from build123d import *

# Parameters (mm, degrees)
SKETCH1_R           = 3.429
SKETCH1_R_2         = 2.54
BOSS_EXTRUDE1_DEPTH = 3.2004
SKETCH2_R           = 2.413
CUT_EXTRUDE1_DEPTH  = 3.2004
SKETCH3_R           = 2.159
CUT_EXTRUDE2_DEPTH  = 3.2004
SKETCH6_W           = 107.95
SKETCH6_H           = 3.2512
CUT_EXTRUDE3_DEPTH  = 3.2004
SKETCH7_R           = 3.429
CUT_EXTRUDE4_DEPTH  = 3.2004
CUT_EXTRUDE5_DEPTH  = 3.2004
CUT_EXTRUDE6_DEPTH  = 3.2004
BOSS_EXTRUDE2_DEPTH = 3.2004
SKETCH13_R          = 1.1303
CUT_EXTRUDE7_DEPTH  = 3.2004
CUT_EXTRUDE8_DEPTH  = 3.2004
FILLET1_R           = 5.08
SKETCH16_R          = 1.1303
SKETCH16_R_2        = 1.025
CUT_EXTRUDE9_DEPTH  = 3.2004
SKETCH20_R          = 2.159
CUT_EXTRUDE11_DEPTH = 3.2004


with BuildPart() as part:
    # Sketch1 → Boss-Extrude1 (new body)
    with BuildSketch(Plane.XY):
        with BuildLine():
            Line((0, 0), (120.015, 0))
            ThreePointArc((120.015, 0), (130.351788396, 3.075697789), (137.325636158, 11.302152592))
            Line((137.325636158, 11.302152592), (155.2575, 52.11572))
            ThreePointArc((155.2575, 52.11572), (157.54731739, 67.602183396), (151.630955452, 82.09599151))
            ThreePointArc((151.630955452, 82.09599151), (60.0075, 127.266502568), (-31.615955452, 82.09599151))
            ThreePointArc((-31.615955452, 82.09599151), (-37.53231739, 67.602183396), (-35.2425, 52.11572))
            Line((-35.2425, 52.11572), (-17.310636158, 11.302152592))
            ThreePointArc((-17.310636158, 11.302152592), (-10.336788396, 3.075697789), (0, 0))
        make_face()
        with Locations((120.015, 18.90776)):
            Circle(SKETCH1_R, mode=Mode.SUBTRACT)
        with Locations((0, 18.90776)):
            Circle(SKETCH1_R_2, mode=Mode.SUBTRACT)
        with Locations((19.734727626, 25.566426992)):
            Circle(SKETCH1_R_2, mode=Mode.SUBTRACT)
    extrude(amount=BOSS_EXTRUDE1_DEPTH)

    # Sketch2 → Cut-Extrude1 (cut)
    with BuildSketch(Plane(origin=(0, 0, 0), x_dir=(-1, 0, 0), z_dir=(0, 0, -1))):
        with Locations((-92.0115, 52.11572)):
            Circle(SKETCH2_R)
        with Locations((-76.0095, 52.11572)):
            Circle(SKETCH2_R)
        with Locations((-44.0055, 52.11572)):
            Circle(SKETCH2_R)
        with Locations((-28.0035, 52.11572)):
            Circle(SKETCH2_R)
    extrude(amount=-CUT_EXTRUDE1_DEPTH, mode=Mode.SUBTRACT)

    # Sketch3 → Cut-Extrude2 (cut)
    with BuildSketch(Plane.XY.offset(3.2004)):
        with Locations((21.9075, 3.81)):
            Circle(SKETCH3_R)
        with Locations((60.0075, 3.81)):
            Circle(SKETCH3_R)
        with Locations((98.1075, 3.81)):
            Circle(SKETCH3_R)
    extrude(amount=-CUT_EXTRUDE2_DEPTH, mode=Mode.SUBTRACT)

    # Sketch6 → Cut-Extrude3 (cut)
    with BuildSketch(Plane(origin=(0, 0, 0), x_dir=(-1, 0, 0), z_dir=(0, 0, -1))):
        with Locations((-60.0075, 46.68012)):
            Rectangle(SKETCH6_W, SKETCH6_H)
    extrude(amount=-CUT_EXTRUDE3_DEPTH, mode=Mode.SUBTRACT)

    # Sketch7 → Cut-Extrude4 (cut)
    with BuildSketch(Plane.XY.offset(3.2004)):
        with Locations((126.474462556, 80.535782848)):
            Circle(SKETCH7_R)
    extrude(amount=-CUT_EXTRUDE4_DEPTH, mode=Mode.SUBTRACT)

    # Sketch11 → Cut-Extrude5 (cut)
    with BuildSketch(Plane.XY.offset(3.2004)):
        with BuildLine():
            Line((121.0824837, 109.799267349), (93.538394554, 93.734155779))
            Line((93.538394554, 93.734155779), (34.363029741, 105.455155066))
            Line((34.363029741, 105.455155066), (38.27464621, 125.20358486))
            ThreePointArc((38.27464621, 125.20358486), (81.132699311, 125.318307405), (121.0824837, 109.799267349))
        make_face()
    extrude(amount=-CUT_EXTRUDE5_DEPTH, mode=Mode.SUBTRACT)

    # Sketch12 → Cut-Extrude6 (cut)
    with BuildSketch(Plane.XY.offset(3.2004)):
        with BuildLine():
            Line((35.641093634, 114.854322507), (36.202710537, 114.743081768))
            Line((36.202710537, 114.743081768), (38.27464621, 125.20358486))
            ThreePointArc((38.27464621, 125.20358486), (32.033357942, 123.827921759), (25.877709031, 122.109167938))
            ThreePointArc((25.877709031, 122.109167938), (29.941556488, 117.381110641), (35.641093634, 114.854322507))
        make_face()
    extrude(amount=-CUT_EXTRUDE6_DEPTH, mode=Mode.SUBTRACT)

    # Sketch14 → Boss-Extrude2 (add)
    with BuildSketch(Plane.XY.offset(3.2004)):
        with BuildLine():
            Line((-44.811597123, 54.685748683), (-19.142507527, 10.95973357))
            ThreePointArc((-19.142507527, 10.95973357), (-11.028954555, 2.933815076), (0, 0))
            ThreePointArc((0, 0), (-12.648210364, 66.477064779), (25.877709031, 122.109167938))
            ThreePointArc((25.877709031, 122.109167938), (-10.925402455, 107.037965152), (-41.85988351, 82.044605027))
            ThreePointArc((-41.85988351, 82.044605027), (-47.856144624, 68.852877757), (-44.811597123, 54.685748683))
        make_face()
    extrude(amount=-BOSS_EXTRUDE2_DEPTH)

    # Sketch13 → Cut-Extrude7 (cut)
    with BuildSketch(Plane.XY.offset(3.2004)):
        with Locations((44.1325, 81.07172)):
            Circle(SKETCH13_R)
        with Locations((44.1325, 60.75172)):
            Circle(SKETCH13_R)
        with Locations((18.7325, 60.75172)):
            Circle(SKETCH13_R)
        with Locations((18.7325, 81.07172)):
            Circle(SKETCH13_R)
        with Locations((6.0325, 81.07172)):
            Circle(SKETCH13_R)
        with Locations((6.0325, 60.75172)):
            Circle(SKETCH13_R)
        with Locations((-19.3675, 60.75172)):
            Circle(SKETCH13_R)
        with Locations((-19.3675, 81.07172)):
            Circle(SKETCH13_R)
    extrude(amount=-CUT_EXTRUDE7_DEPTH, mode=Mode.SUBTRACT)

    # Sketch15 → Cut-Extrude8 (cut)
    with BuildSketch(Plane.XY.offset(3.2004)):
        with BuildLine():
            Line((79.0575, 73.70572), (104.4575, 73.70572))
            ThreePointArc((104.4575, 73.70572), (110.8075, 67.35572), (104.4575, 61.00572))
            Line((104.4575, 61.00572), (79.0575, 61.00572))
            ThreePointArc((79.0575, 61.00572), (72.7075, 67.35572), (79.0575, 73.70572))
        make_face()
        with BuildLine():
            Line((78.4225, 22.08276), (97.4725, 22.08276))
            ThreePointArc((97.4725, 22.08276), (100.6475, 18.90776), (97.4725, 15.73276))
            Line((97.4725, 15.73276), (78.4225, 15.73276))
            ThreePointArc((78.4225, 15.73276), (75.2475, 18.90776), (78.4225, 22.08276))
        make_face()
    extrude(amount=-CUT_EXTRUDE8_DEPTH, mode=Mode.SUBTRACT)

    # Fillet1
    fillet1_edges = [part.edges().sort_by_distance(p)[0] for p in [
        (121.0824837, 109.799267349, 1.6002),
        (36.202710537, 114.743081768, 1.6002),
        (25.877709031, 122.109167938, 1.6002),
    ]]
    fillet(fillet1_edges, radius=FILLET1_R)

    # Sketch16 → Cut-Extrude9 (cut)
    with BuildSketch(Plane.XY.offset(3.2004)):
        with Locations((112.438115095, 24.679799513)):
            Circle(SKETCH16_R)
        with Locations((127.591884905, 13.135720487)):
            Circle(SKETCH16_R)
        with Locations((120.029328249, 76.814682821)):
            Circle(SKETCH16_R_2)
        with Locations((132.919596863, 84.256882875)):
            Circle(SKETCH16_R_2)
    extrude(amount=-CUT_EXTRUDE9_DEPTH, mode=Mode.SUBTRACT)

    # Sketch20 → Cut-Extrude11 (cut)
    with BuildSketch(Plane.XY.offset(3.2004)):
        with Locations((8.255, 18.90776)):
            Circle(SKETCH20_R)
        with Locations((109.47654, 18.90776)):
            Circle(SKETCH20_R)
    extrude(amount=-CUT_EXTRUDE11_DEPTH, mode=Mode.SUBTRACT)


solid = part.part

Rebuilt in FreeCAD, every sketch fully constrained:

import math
import FreeCAD as App
import Part
import Sketcher

V = App.Vector
Q = App.Units.Quantity


def edges_at(feature, points):
    """Names of the edges that pass closest to the given points."""
    edges = feature.Shape.Edges
    near = lambda p: min(range(len(edges)), key=lambda i: edges[i].distToShape(Part.Vertex(*p))[0])
    return sorted({f"Edge{near(p) + 1}" for p in points})

doc = App.newDocument("Part")
params = doc.addObject("Spreadsheet::Sheet", "Params")
for row, (alias, value) in enumerate([
    ("sketch1_diameter", "0.2 in"),
    ("sketch1_diameter2", "0.27 in"),
    ("sketch1_width", "4.725 in"),
    ("pad1_length", "0.126 in"),
    ("sketch2_diameter", "0.19 in"),
    ("pocket1_length", "0.126 in"),
    ("sketch3_diameter", "0.17 in"),
    ("pocket2_length", "0.126 in"),
    ("sketch4_width", "4.25 in"),
    ("sketch4_height", "0.128 in"),
    ("pocket3_length", "0.126 in"),
    ("sketch5_diameter", "0.27 in"),
    ("pocket4_length", "0.126 in"),
    ("sketch6_length", "2.375 in"),
    ("pocket5_length", "0.126 in"),
    ("sketch7_radius", "0.558 in"),
    ("pocket6_length", "0.126 in"),
    ("pad2_length", "0.126 in"),
    ("sketch9_diameter", "0.089 in"),
    ("pocket7_length", "0.126 in"),
    ("sketch10_width", "1 in"),
    ("sketch10_radius", "0.25 in"),
    ("sketch10_radius2", "0.125 in"),
    ("sketch10_width2", "0.75 in"),
    ("pocket8_length", "0.126 in"),
    ("fillet_radius", "0.2 in"),
    ("sketch11_diameter", "0.089 in"),
    ("pocket9_length", "0.126 in"),
    ("sketch12_diameter", "0.17 in"),
    ("pocket10_length", "0.126 in"),
], start=1):
    params.set(f"A{row}", alias)
    params.set(f"B{row}", "=" + value)
    params.setAlias(f"B{row}", alias)

body = doc.addObject("PartDesign::Body", "Body")

# Sketch on XY plane
sketch1 = body.newObject("Sketcher::SketchObject", "Sketch")
sketch1.AttachmentSupport = (doc.getObject("XY_Plane"), [""])
sketch1.MapMode = "FlatFace"
sketch1.addGeometry(Part.LineSegment(V(0, 0, 0), V(120.015, 0, 0)), False)
sketch1.addGeometry(Part.ArcOfCircle(Part.Circle(V(120.015, 18.90776, 0), V(0, 0, 1), 18.90776), math.radians(-90), math.radians(-23.718783)), False)
sketch1.addGeometry(Part.LineSegment(V(137.325636, 11.302153, 0), V(155.2575, 52.11572, 0)), False)
sketch1.addGeometry(Part.ArcOfCircle(Part.Circle(V(128.11346, 64.041735, 0), V(0, 0, 1), 29.648419), math.radians(-23.718783), math.radians(37.513257)), False)
sketch1.addGeometry(Part.ArcOfCircle(Part.Circle(V(60.0075, 11.757154, 0), V(0, 0, 1), 115.509349), math.radians(37.513257), math.radians(142.486743)), False)
sketch1.addGeometry(Part.ArcOfCircle(Part.Circle(V(-8.09846, 64.041735, 0), V(0, 0, 1), 29.648419), math.radians(142.486743), math.radians(203.718783)), False)
sketch1.addGeometry(Part.LineSegment(V(-35.2425, 52.11572, 0), V(-17.310636, 11.302153, 0)), False)
sketch1.addGeometry(Part.ArcOfCircle(Part.Circle(V(0, 18.90776, 0), V(0, 0, 1), 18.90776), math.radians(-156.281217), math.radians(-90)), False)
sketch1.addGeometry(Part.Circle(V(0, 18.90776, 0), V(0, 0, 1), 2.54), False)
sketch1.addGeometry(Part.Circle(V(120.015, 18.90776, 0), V(0, 0, 1), 3.429), False)
sketch1.addGeometry(Part.Circle(V(19.734728, 25.566427, 0), V(0, 0, 1), 2.54), False)
sketch1.addConstraint(Sketcher.Constraint("Tangent", 0, 2, 1, 1))
sketch1.addConstraint(Sketcher.Constraint("Tangent", 1, 2, 2, 1))
sketch1.addConstraint(Sketcher.Constraint("Tangent", 2, 2, 3, 1))
sketch1.addConstraint(Sketcher.Constraint("Tangent", 3, 2, 4, 1))
sketch1.addConstraint(Sketcher.Constraint("Tangent", 4, 2, 5, 1))
sketch1.addConstraint(Sketcher.Constraint("Tangent", 5, 2, 6, 1))
sketch1.addConstraint(Sketcher.Constraint("Tangent", 6, 2, 7, 1))
sketch1.addConstraint(Sketcher.Constraint("Tangent", 7, 2, 0, 1))
sketch1.addConstraint(Sketcher.Constraint("Horizontal", 0))
sketch1.addConstraint(Sketcher.Constraint("Coincident", 7, 2, -1, 1))
sketch1.addConstraint(Sketcher.Constraint("Coincident", 8, 3, 7, 3))
sketch1.addConstraint(Sketcher.Constraint("Coincident", 9, 3, 1, 3))
sketch1.addConstraint(Sketcher.Constraint("Equal", 3, 5))
sketch1.addConstraint(Sketcher.Constraint("Equal", 1, 7))
sketch1.addConstraint(Sketcher.Constraint("Equal", 8, 10))
sketch1.addConstraint(Sketcher.Constraint("Horizontal", 3, 3, 5, 3))
sketch1.addConstraint(Sketcher.Constraint("Horizontal", 2, 2, 5, 2))
sketch1.addConstraint(Sketcher.Constraint("Diameter", 8, Q("0.2 in")))
sketch1.addConstraint(Sketcher.Constraint("Diameter", 9, Q("0.27 in")))
sketch1.addConstraint(Sketcher.Constraint("Radius", 1, Q("0.7444 in")))
sketch1.addConstraint(Sketcher.Constraint("DistanceX", 0, 1, 0, 2, Q("4.725 in")))
sketch1.addConstraint(Sketcher.Constraint("Radius", 3, Q("29.648419 mm")))
sketch1.addConstraint(Sketcher.Constraint("Radius", 4, Q("115.509349 mm")))
sketch1.addConstraint(Sketcher.Constraint("DistanceX", -1, 1, 2, 2, Q("6.1125 in")))
sketch1.addConstraint(Sketcher.Constraint("DistanceY", -1, 1, 2, 2, Q("2.0518 in")))
sketch1.addConstraint(Sketcher.Constraint("DistanceY", 10, 3, 5, 3, Q("38.475308 mm")))
sketch1.addConstraint(Sketcher.Constraint("DistanceX", -1, 1, 10, 3, Q("19.734728 mm")))
sketch1.setExpression("Constraints[17]", "Params.sketch1_diameter")
sketch1.setExpression("Constraints[18]", "Params.sketch1_diameter2")
sketch1.setExpression("Constraints[20]", "Params.sketch1_width")
pad1 = body.newObject("PartDesign::Pad", "Pad")
pad1.Profile = sketch1
pad1.setExpression("Length", "Params.pad1_length")

# Sketch on XY plane
sketch2 = body.newObject("Sketcher::SketchObject", "Sketch001")
sketch2.AttachmentSupport = (doc.getObject("XY_Plane"), [""])
sketch2.MapMode = "FlatFace"
sketch2.addGeometry(Part.Circle(V(92.0115, 52.11572, 0), V(0, 0, 1), 2.413), False)
sketch2.addGeometry(Part.Circle(V(76.0095, 52.11572, 0), V(0, 0, 1), 2.413), False)
sketch2.addGeometry(Part.Circle(V(44.0055, 52.11572, 0), V(0, 0, 1), 2.413), False)
sketch2.addGeometry(Part.Circle(V(28.0035, 52.11572, 0), V(0, 0, 1), 2.413), False)
sketch2.addConstraint(Sketcher.Constraint("Equal", 0, 1))
sketch2.addConstraint(Sketcher.Constraint("Equal", 1, 2))
sketch2.addConstraint(Sketcher.Constraint("Equal", 2, 3))
sketch2.addConstraint(Sketcher.Constraint("Horizontal", 0, 3, 1, 3))
sketch2.addConstraint(Sketcher.Constraint("Horizontal", 1, 3, 2, 3))
sketch2.addConstraint(Sketcher.Constraint("Horizontal", 2, 3, 3, 3))
sketch2.addConstraint(Sketcher.Constraint("Diameter", 0, Q("0.19 in")))
sketch2.addConstraint(Sketcher.Constraint("DistanceX", 1, 3, 0, 3, Q("0.63 in")))
sketch2.addConstraint(Sketcher.Constraint("DistanceX", 2, 3, 1, 3, Q("1.26 in")))
sketch2.addConstraint(Sketcher.Constraint("DistanceX", 3, 3, 2, 3, Q("0.63 in")))
sketch2.addConstraint(Sketcher.Constraint("DistanceX", -1, 1, 0, 3, Q("3.6225 in")))
sketch2.addConstraint(Sketcher.Constraint("DistanceY", -1, 1, 0, 3, Q("2.0518 in")))
sketch2.setExpression("Constraints[6]", "Params.sketch2_diameter")
pocket1 = body.newObject("PartDesign::Pocket", "Pocket")
pocket1.Profile = sketch2
pocket1.setExpression("Length", "Params.pocket1_length")
pocket1.Reversed = True

# Sketch on XY plane
sketch3 = body.newObject("Sketcher::SketchObject", "Sketch002")
sketch3.AttachmentSupport = (doc.getObject("XY_Plane"), [""])
sketch3.MapMode = "FlatFace"
sketch3.AttachmentOffset = App.Placement(V(0, 0, 0.126 * 25.4), App.Rotation())
sketch3.addGeometry(Part.Circle(V(21.9075, 3.81, 0), V(0, 0, 1), 2.159), False)
sketch3.addGeometry(Part.Circle(V(60.0075, 3.81, 0), V(0, 0, 1), 2.159), False)
sketch3.addGeometry(Part.Circle(V(98.1075, 3.81, 0), V(0, 0, 1), 2.159), False)
sketch3.addConstraint(Sketcher.Constraint("Equal", 0, 1))
sketch3.addConstraint(Sketcher.Constraint("Equal", 1, 2))
sketch3.addConstraint(Sketcher.Constraint("Horizontal", 0, 3, 1, 3))
sketch3.addConstraint(Sketcher.Constraint("Horizontal", 1, 3, 2, 3))
sketch3.addConstraint(Sketcher.Constraint("Diameter", 0, Q("0.17 in")))
sketch3.addConstraint(Sketcher.Constraint("DistanceX", 0, 3, 2, 3, Q("3 in")))
sketch3.addConstraint(Sketcher.Constraint("DistanceX", 0, 3, 1, 3, Q("1.5 in")))
sketch3.addConstraint(Sketcher.Constraint("DistanceY", -1, 1, 0, 3, Q("0.15 in")))
sketch3.addConstraint(Sketcher.Constraint("DistanceX", -1, 1, 0, 3, Q("0.8625 in")))
sketch3.setExpression("Constraints[4]", "Params.sketch3_diameter")
pocket2 = body.newObject("PartDesign::Pocket", "Pocket001")
pocket2.Profile = sketch3
pocket2.setExpression("Length", "Params.pocket2_length")

# Sketch on XY plane
sketch4 = body.newObject("Sketcher::SketchObject", "Sketch003")
sketch4.AttachmentSupport = (doc.getObject("XY_Plane"), [""])
sketch4.MapMode = "FlatFace"
sketch4.addGeometry(Part.LineSegment(V(113.9825, 48.30572, 0), V(113.9825, 45.05452, 0)), False)
sketch4.addGeometry(Part.LineSegment(V(113.9825, 45.05452, 0), V(6.0325, 45.05452, 0)), False)
sketch4.addGeometry(Part.LineSegment(V(6.0325, 45.05452, 0), V(6.0325, 48.30572, 0)), False)
sketch4.addGeometry(Part.LineSegment(V(6.0325, 48.30572, 0), V(113.9825, 48.30572, 0)), False)
sketch4.addConstraint(Sketcher.Constraint("Coincident", 0, 2, 1, 1))
sketch4.addConstraint(Sketcher.Constraint("Coincident", 1, 2, 2, 1))
sketch4.addConstraint(Sketcher.Constraint("Coincident", 2, 2, 3, 1))
sketch4.addConstraint(Sketcher.Constraint("Coincident", 3, 2, 0, 1))
sketch4.addConstraint(Sketcher.Constraint("Vertical", 0))
sketch4.addConstraint(Sketcher.Constraint("Horizontal", 1))
sketch4.addConstraint(Sketcher.Constraint("Vertical", 2))
sketch4.addConstraint(Sketcher.Constraint("Horizontal", 3))
sketch4.addConstraint(Sketcher.Constraint("DistanceX", 1, 2, 1, 1, Q("4.25 in")))
sketch4.addConstraint(Sketcher.Constraint("DistanceY", 0, 2, 0, 1, Q("0.128 in")))
sketch4.addConstraint(Sketcher.Constraint("DistanceX", -1, 1, 0, 2, Q("4.4875 in")))
sketch4.addConstraint(Sketcher.Constraint("DistanceY", -1, 1, 0, 2, Q("1.7738 in")))
sketch4.setExpression("Constraints[8]", "Params.sketch4_width")
sketch4.setExpression("Constraints[9]", "Params.sketch4_height")
pocket3 = body.newObject("PartDesign::Pocket", "Pocket002")
pocket3.Profile = sketch4
pocket3.setExpression("Length", "Params.pocket3_length")
pocket3.Reversed = True

# Sketch on XY plane
sketch5 = body.newObject("Sketcher::SketchObject", "Sketch004")
sketch5.AttachmentSupport = (doc.getObject("XY_Plane"), [""])
sketch5.MapMode = "FlatFace"
sketch5.AttachmentOffset = App.Placement(V(0, 0, 0.126 * 25.4), App.Rotation())
sketch5.addGeometry(Part.Circle(V(126.474463, 80.535783, 0), V(0, 0, 1), 3.429), False)
sketch5.addConstraint(Sketcher.Constraint("Diameter", 0, Q("0.27 in")))
sketch5.addConstraint(Sketcher.Constraint("DistanceY", -1, 1, 0, 3, Q("3.1707001 in")))
sketch5.addConstraint(Sketcher.Constraint("DistanceX", -1, 1, 0, 3, Q("126.474463 mm")))
sketch5.setExpression("Constraints[0]", "Params.sketch5_diameter")
pocket4 = body.newObject("PartDesign::Pocket", "Pocket003")
pocket4.Profile = sketch5
pocket4.setExpression("Length", "Params.pocket4_length")

# Sketch on XY plane
sketch6 = body.newObject("Sketcher::SketchObject", "Sketch005")
sketch6.AttachmentSupport = (doc.getObject("XY_Plane"), [""])
sketch6.MapMode = "FlatFace"
sketch6.AttachmentOffset = App.Placement(V(0, 0, 0.126 * 25.4), App.Rotation())
sketch6.addGeometry(Part.LineSegment(V(93.538395, 93.734156, 0), V(121.082484, 109.799267, 0)), False)
sketch6.addGeometry(Part.ArcOfCircle(Part.Circle(V(60.0075, 11.757154, 0), V(0, 0, 1), 115.509349), math.radians(58.079305), math.radians(100.844724)), False)
sketch6.addGeometry(Part.LineSegment(V(38.274646, 125.203585, 0), V(34.36303, 105.455155, 0)), False)
sketch6.addGeometry(Part.LineSegment(V(34.36303, 105.455155, 0), V(93.538395, 93.734156, 0)), False)
sketch6.addConstraint(Sketcher.Constraint("Coincident", 0, 2, 1, 1))
sketch6.addConstraint(Sketcher.Constraint("Coincident", 1, 2, 2, 1))
sketch6.addConstraint(Sketcher.Constraint("Coincident", 2, 2, 3, 1))
sketch6.addConstraint(Sketcher.Constraint("Coincident", 3, 2, 0, 1))
sketch6.addConstraint(Sketcher.Constraint("Perpendicular", 2, 3))
sketch6.addConstraint(Sketcher.Constraint("Distance", 3, Q("2.375 in")))
sketch6.addConstraint(Sketcher.Constraint("Radius", 1, Q("115.509349 mm")))
sketch6.addConstraint(Sketcher.Constraint("DistanceX", -1, 1, 1, 3, Q("2.3625 in")))
sketch6.addConstraint(Sketcher.Constraint("DistanceY", 1, 3, 2, 2, Q("93.698002 mm")))
sketch6.addConstraint(Sketcher.Constraint("DistanceY", 3, 2, 2, 2, Q("11.720999 mm")))
sketch6.addConstraint(Sketcher.Constraint("DistanceX", -1, 1, 2, 2, Q("34.36303 mm")))
sketch6.addConstraint(Sketcher.Constraint("DistanceX", 3, 2, 0, 2, Q("27.544089 mm")))
sketch6.addConstraint(Sketcher.Constraint("DistanceY", -1, 1, 1, 3, Q("11.757154 mm")))
sketch6.setExpression("Constraints[5]", "Params.sketch6_length")
pocket5 = body.newObject("PartDesign::Pocket", "Pocket004")
pocket5.Profile = sketch6
pocket5.setExpression("Length", "Params.pocket5_length")

# Sketch on XY plane
sketch7 = body.newObject("Sketcher::SketchObject", "Sketch006")
sketch7.AttachmentSupport = (doc.getObject("XY_Plane"), [""])
sketch7.MapMode = "FlatFace"
sketch7.AttachmentOffset = App.Placement(V(0, 0, 0.126 * 25.4), App.Rotation())
sketch7.addGeometry(Part.LineSegment(V(35.641094, 114.854323, 0), V(36.202711, 114.743082, 0)), False)
sketch7.addGeometry(Part.LineSegment(V(36.202711, 114.743082, 0), V(38.274646, 125.203585, 0)), False)
sketch7.addGeometry(Part.ArcOfCircle(Part.Circle(V(60.0075, 11.757153, 0), V(0, 0, 1), 115.509349), math.radians(100.844724), math.radians(107.185849)), False)
sketch7.addGeometry(Part.ArcOfCircle(Part.Circle(V(38.394912, 128.757419, 0), V(0, 0, 1), 14.1732), math.radians(-152.025927), math.radians(-101.203691)), False)
sketch7.addConstraint(Sketcher.Constraint("Coincident", 0, 2, 1, 1))
sketch7.addConstraint(Sketcher.Constraint("Coincident", 1, 2, 2, 1))
sketch7.addConstraint(Sketcher.Constraint("Coincident", 2, 2, 3, 1))
sketch7.addConstraint(Sketcher.Constraint("Tangent", 3, 2, 0, 1))
sketch7.addConstraint(Sketcher.Constraint("Perpendicular", 0, 1))
sketch7.addConstraint(Sketcher.Constraint("Radius", 3, Q("0.558 in")))
sketch7.addConstraint(Sketcher.Constraint("Radius", 2, Q("115.509349 mm")))
sketch7.addConstraint(Sketcher.Constraint("DistanceX", -1, 1, 2, 3, Q("2.3625 in")))
sketch7.addConstraint(Sketcher.Constraint("DistanceX", 0, 2, 3, 3, Q("2.192201 mm")))
sketch7.addConstraint(Sketcher.Constraint("DistanceX", 2, 2, 0, 2, Q("10.325002 mm")))
sketch7.addConstraint(Sketcher.Constraint("DistanceX", -1, 1, 3, 3, Q("38.394912 mm")))
sketch7.addConstraint(Sketcher.Constraint("DistanceY", -1, 1, 3, 3, Q("128.757419 mm")))
sketch7.addConstraint(Sketcher.Constraint("DistanceY", -1, 1, 0, 2, Q("114.743082 mm")))
sketch7.setExpression("Constraints[5]", "Params.sketch7_radius")
pocket6 = body.newObject("PartDesign::Pocket", "Pocket005")
pocket6.Profile = sketch7
pocket6.setExpression("Length", "Params.pocket6_length")

# Sketch on XY plane
sketch8 = body.newObject("Sketcher::SketchObject", "Sketch007")
sketch8.AttachmentSupport = (doc.getObject("XY_Plane"), [""])
sketch8.MapMode = "FlatFace"
sketch8.AttachmentOffset = App.Placement(V(0, 0, 0.126 * 25.4), App.Rotation())
sketch8.addGeometry(Part.LineSegment(V(-44.811597, 54.685749, 0), V(-19.142508, 10.959734, 0)), False)
sketch8.addGeometry(Part.ArcOfCircle(Part.Circle(V(0, 22.197225, 0), V(0, 0, 1), 22.197225), math.radians(-149.585196), math.radians(-90)), False)
sketch8.addGeometry(Part.ArcOfCircle(Part.Circle(V(72.988031, 48.328798, 0), V(0, 0, 1), 87.538137), math.radians(122.559089), math.radians(213.510411)), False)
sketch8.addGeometry(Part.ArcOfCircle(Part.Circle(V(58.920963, -11.052045, 0), V(0, 0, 1), 137.199728), math.radians(103.936154), math.radians(137.269689)), False)
sketch8.addGeometry(Part.ArcOfCircle(Part.Circle(V(-24.897932, 66.375944, 0), V(0, 0, 1), 23.091443), math.radians(137.269689), math.radians(210.414804)), False)
sketch8.addConstraint(Sketcher.Constraint("Tangent", 0, 2, 1, 1))
sketch8.addConstraint(Sketcher.Constraint("Coincident", 1, 2, 2, 2))
sketch8.addConstraint(Sketcher.Constraint("Coincident", 2, 1, 3, 1))
sketch8.addConstraint(Sketcher.Constraint("Tangent", 3, 2, 4, 1))
sketch8.addConstraint(Sketcher.Constraint("Tangent", 4, 2, 0, 1))
sketch8.addConstraint(Sketcher.Constraint("Coincident", 1, 2, -1, 1))
sketch8.addConstraint(Sketcher.Constraint("PointOnObject", 1, 3, -2))
sketch8.addConstraint(Sketcher.Constraint("Radius", 1, Q("22.197225 mm")))
sketch8.addConstraint(Sketcher.Constraint("Radius", 2, Q("87.538137 mm")))
sketch8.addConstraint(Sketcher.Constraint("Radius", 3, Q("137.199728 mm")))
sketch8.addConstraint(Sketcher.Constraint("Radius", 4, Q("23.091443 mm")))
sketch8.addConstraint(Sketcher.Constraint("DistanceY", -1, 1, 2, 3, Q("48.328798 mm")))
sketch8.addConstraint(Sketcher.Constraint("DistanceX", 4, 3, -1, 1, Q("24.897932 mm")))
sketch8.addConstraint(Sketcher.Constraint("DistanceX", -1, 1, 2, 1, Q("25.877709 mm")))
sketch8.addConstraint(Sketcher.Constraint("DistanceY", -1, 1, 4, 2, Q("54.685749 mm")))
pad2 = body.newObject("PartDesign::Pad", "Pad001")
pad2.Profile = sketch8
pad2.setExpression("Length", "Params.pad2_length")
pad2.Reversed = True

# Sketch on XY plane
sketch9 = body.newObject("Sketcher::SketchObject", "Sketch008")
sketch9.AttachmentSupport = (doc.getObject("XY_Plane"), [""])
sketch9.MapMode = "FlatFace"
sketch9.AttachmentOffset = App.Placement(V(0, 0, 0.126 * 25.4), App.Rotation())
sketch9.addGeometry(Part.Circle(V(44.1325, 81.07172, 0), V(0, 0, 1), 1.1303), False)
sketch9.addGeometry(Part.Circle(V(44.1325, 60.75172, 0), V(0, 0, 1), 1.1303), False)
sketch9.addGeometry(Part.Circle(V(18.7325, 60.75172, 0), V(0, 0, 1), 1.1303), False)
sketch9.addGeometry(Part.Circle(V(18.7325, 81.07172, 0), V(0, 0, 1), 1.1303), False)
sketch9.addGeometry(Part.Circle(V(6.0325, 81.07172, 0), V(0, 0, 1), 1.1303), False)
sketch9.addGeometry(Part.Circle(V(6.0325, 60.75172, 0), V(0, 0, 1), 1.1303), False)
sketch9.addGeometry(Part.Circle(V(-19.3675, 60.75172, 0), V(0, 0, 1), 1.1303), False)
sketch9.addGeometry(Part.Circle(V(-19.3675, 81.07172, 0), V(0, 0, 1), 1.1303), False)
sketch9.addConstraint(Sketcher.Constraint("Equal", 0, 1))
sketch9.addConstraint(Sketcher.Constraint("Equal", 1, 2))
sketch9.addConstraint(Sketcher.Constraint("Equal", 2, 3))
sketch9.addConstraint(Sketcher.Constraint("Equal", 3, 4))
sketch9.addConstraint(Sketcher.Constraint("Equal", 4, 5))
sketch9.addConstraint(Sketcher.Constraint("Equal", 5, 6))
sketch9.addConstraint(Sketcher.Constraint("Equal", 6, 7))
sketch9.addConstraint(Sketcher.Constraint("Horizontal", 1, 3, 2, 3))
sketch9.addConstraint(Sketcher.Constraint("Horizontal", 0, 3, 3, 3))
sketch9.addConstraint(Sketcher.Constraint("Horizontal", 3, 3, 4, 3))
sketch9.addConstraint(Sketcher.Constraint("Horizontal", 2, 3, 5, 3))
sketch9.addConstraint(Sketcher.Constraint("Horizontal", 5, 3, 6, 3))
sketch9.addConstraint(Sketcher.Constraint("Horizontal", 4, 3, 7, 3))
sketch9.addConstraint(Sketcher.Constraint("Vertical", 0, 3, 1, 3))
sketch9.addConstraint(Sketcher.Constraint("Vertical", 2, 3, 3, 3))
sketch9.addConstraint(Sketcher.Constraint("Vertical", 4, 3, 5, 3))
sketch9.addConstraint(Sketcher.Constraint("Vertical", 6, 3, 7, 3))
sketch9.addConstraint(Sketcher.Constraint("Diameter", 0, Q("0.089 in")))
sketch9.addConstraint(Sketcher.Constraint("DistanceX", 2, 3, 1, 3, Q("1 in")))
sketch9.addConstraint(Sketcher.Constraint("DistanceX", 6, 3, 5, 3, Q("1 in")))
sketch9.addConstraint(Sketcher.Constraint("DistanceY", 1, 3, 0, 3, Q("0.8 in")))
sketch9.addConstraint(Sketcher.Constraint("DistanceX", 4, 3, 3, 3, Q("0.5 in")))
sketch9.addConstraint(Sketcher.Constraint("DistanceX", -1, 1, 0, 3, Q("1.7375 in")))
sketch9.addConstraint(Sketcher.Constraint("DistanceY", -1, 1, 0, 3, Q("3.1918 in")))
sketch9.setExpression("Constraints[17]", "Params.sketch9_diameter")
pocket7 = body.newObject("PartDesign::Pocket", "Pocket006")
pocket7.Profile = sketch9
pocket7.setExpression("Length", "Params.pocket7_length")

# Sketch on XY plane
sketch10 = body.newObject("Sketcher::SketchObject", "Sketch009")
sketch10.AttachmentSupport = (doc.getObject("XY_Plane"), [""])
sketch10.MapMode = "FlatFace"
sketch10.AttachmentOffset = App.Placement(V(0, 0, 0.126 * 25.4), App.Rotation())
sketch10.addGeometry(Part.LineSegment(V(104.4575, 73.70572, 0), V(79.0575, 73.70572, 0)), False)
sketch10.addGeometry(Part.ArcOfCircle(Part.Circle(V(79.0575, 67.35572, 0), V(0, 0, 1), 6.35), math.radians(90), math.radians(270)), False)
sketch10.addGeometry(Part.LineSegment(V(79.0575, 61.00572, 0), V(104.4575, 61.00572, 0)), False)
sketch10.addGeometry(Part.ArcOfCircle(Part.Circle(V(104.4575, 67.35572, 0), V(0, 0, 1), 6.35), math.radians(-90), math.radians(90)), False)
sketch10.addGeometry(Part.LineSegment(V(97.4725, 22.08276, 0), V(78.4225, 22.08276, 0)), False)
sketch10.addGeometry(Part.ArcOfCircle(Part.Circle(V(78.4225, 18.90776, 0), V(0, 0, 1), 3.175), math.radians(90), math.radians(270)), False)
sketch10.addGeometry(Part.LineSegment(V(78.4225, 15.73276, 0), V(97.4725, 15.73276, 0)), False)
sketch10.addGeometry(Part.ArcOfCircle(Part.Circle(V(97.4725, 18.90776, 0), V(0, 0, 1), 3.175), math.radians(-90), math.radians(90)), False)
sketch10.addConstraint(Sketcher.Constraint("Tangent", 0, 2, 1, 1))
sketch10.addConstraint(Sketcher.Constraint("Tangent", 1, 2, 2, 1))
sketch10.addConstraint(Sketcher.Constraint("Tangent", 2, 2, 3, 1))
sketch10.addConstraint(Sketcher.Constraint("Tangent", 3, 2, 0, 1))
sketch10.addConstraint(Sketcher.Constraint("Tangent", 4, 2, 5, 1))
sketch10.addConstraint(Sketcher.Constraint("Tangent", 5, 2, 6, 1))
sketch10.addConstraint(Sketcher.Constraint("Tangent", 6, 2, 7, 1))
sketch10.addConstraint(Sketcher.Constraint("Tangent", 7, 2, 4, 1))
sketch10.addConstraint(Sketcher.Constraint("Horizontal", 0))
sketch10.addConstraint(Sketcher.Constraint("Horizontal", 2))
sketch10.addConstraint(Sketcher.Constraint("Horizontal", 4))
sketch10.addConstraint(Sketcher.Constraint("Horizontal", 6))
sketch10.addConstraint(Sketcher.Constraint("DistanceX", 0, 2, 0, 1, Q("1 in")))
sketch10.addConstraint(Sketcher.Constraint("Radius", 1, Q("0.25 in")))
sketch10.addConstraint(Sketcher.Constraint("Radius", 5, Q("0.125 in")))
sketch10.addConstraint(Sketcher.Constraint("DistanceX", 4, 2, 4, 1, Q("0.75 in")))
sketch10.addConstraint(Sketcher.Constraint("DistanceX", 5, 3, 1, 3, Q("0.025 in")))
sketch10.addConstraint(Sketcher.Constraint("DistanceX", -1, 1, 1, 3, Q("3.1125 in")))
sketch10.addConstraint(Sketcher.Constraint("DistanceY", -1, 1, 1, 3, Q("2.6518 in")))
sketch10.addConstraint(Sketcher.Constraint("DistanceY", -1, 1, 5, 3, Q("0.7444 in")))
sketch10.setExpression("Constraints[12]", "Params.sketch10_width")
sketch10.setExpression("Constraints[13]", "Params.sketch10_radius")
sketch10.setExpression("Constraints[14]", "Params.sketch10_radius2")
sketch10.setExpression("Constraints[15]", "Params.sketch10_width2")
pocket8 = body.newObject("PartDesign::Pocket", "Pocket007")
pocket8.Profile = sketch10
pocket8.setExpression("Length", "Params.pocket8_length")
doc.recompute()

fillet = body.newObject("PartDesign::Fillet", "Fillet")
fillet.Base = (pocket8, edges_at(pocket8, [(121.082, 109.799, 1.6), (36.203, 114.743, 1.6), (25.878, 122.109, 1.6)]))
fillet.setExpression("Radius", "Params.fillet_radius")

# Sketch on XY plane
sketch11 = body.newObject("Sketcher::SketchObject", "Sketch010")
sketch11.AttachmentSupport = (doc.getObject("XY_Plane"), [""])
sketch11.MapMode = "FlatFace"
sketch11.AttachmentOffset = App.Placement(V(0, 0, 0.126 * 25.4), App.Rotation())
sketch11.addGeometry(Part.Circle(V(112.438115, 24.6798, 0), V(0, 0, 1), 1.1303), False)
sketch11.addGeometry(Part.Circle(V(127.591885, 13.13572, 0), V(0, 0, 1), 1.1303), False)
sketch11.addGeometry(Part.Circle(V(120.029328, 76.814683, 0), V(0, 0, 1), 1.025), False)
sketch11.addGeometry(Part.Circle(V(132.919597, 84.256883, 0), V(0, 0, 1), 1.025), False)
sketch11.addConstraint(Sketcher.Constraint("Equal", 0, 1))
sketch11.addConstraint(Sketcher.Constraint("Equal", 2, 3))
sketch11.addConstraint(Sketcher.Constraint("Diameter", 0, Q("0.089 in")))
sketch11.addConstraint(Sketcher.Constraint("Diameter", 2, Q("2.05 mm")))
sketch11.addConstraint(Sketcher.Constraint("DistanceY", 2, 3, 3, 3, Q("0.293 in")))
sketch11.addConstraint(Sketcher.Constraint("DistanceY", -1, 1, 2, 3, Q("3.0242001 in")))
sketch11.addConstraint(Sketcher.Constraint("DistanceY", -1, 1, 0, 3, Q("24.6798 mm")))
sketch11.addConstraint(Sketcher.Constraint("DistanceY", -1, 1, 1, 3, Q("13.13572 mm")))
sketch11.addConstraint(Sketcher.Constraint("DistanceX", -1, 1, 2, 3, Q("120.029328 mm")))
sketch11.addConstraint(Sketcher.Constraint("DistanceX", 0, 3, 1, 3, Q("15.15377 mm")))
sketch11.addConstraint(Sketcher.Constraint("DistanceX", 2, 3, 3, 3, Q("12.890269 mm")))
sketch11.addConstraint(Sketcher.Constraint("DistanceX", 0, 3, 3, 3, Q("20.481482 mm")))
sketch11.setExpression("Constraints[2]", "Params.sketch11_diameter")
pocket9 = body.newObject("PartDesign::Pocket", "Pocket008")
pocket9.Profile = sketch11
pocket9.setExpression("Length", "Params.pocket9_length")

# Sketch on XY plane
sketch12 = body.newObject("Sketcher::SketchObject", "Sketch011")
sketch12.AttachmentSupport = (doc.getObject("XY_Plane"), [""])
sketch12.MapMode = "FlatFace"
sketch12.AttachmentOffset = App.Placement(V(0, 0, 0.126 * 25.4), App.Rotation())
sketch12.addGeometry(Part.Circle(V(8.255, 18.90776, 0), V(0, 0, 1), 2.159), False)
sketch12.addGeometry(Part.Circle(V(109.47654, 18.90776, 0), V(0, 0, 1), 2.159), False)
sketch12.addConstraint(Sketcher.Constraint("Equal", 0, 1))
sketch12.addConstraint(Sketcher.Constraint("Horizontal", 0, 3, 1, 3))
sketch12.addConstraint(Sketcher.Constraint("Diameter", 0, Q("0.17 in")))
sketch12.addConstraint(Sketcher.Constraint("DistanceX", -1, 1, 0, 3, Q("0.325 in")))
sketch12.addConstraint(Sketcher.Constraint("DistanceY", -1, 1, 0, 3, Q("0.7444 in")))
sketch12.addConstraint(Sketcher.Constraint("DistanceX", -1, 1, 1, 3, Q("4.3101 in")))
sketch12.setExpression("Constraints[2]", "Params.sketch12_diameter")
pocket10 = body.newObject("PartDesign::Pocket", "Pocket009")
pocket10.Profile = sketch12
pocket10.setExpression("Length", "Params.pocket10_length")

doc.recompute()
